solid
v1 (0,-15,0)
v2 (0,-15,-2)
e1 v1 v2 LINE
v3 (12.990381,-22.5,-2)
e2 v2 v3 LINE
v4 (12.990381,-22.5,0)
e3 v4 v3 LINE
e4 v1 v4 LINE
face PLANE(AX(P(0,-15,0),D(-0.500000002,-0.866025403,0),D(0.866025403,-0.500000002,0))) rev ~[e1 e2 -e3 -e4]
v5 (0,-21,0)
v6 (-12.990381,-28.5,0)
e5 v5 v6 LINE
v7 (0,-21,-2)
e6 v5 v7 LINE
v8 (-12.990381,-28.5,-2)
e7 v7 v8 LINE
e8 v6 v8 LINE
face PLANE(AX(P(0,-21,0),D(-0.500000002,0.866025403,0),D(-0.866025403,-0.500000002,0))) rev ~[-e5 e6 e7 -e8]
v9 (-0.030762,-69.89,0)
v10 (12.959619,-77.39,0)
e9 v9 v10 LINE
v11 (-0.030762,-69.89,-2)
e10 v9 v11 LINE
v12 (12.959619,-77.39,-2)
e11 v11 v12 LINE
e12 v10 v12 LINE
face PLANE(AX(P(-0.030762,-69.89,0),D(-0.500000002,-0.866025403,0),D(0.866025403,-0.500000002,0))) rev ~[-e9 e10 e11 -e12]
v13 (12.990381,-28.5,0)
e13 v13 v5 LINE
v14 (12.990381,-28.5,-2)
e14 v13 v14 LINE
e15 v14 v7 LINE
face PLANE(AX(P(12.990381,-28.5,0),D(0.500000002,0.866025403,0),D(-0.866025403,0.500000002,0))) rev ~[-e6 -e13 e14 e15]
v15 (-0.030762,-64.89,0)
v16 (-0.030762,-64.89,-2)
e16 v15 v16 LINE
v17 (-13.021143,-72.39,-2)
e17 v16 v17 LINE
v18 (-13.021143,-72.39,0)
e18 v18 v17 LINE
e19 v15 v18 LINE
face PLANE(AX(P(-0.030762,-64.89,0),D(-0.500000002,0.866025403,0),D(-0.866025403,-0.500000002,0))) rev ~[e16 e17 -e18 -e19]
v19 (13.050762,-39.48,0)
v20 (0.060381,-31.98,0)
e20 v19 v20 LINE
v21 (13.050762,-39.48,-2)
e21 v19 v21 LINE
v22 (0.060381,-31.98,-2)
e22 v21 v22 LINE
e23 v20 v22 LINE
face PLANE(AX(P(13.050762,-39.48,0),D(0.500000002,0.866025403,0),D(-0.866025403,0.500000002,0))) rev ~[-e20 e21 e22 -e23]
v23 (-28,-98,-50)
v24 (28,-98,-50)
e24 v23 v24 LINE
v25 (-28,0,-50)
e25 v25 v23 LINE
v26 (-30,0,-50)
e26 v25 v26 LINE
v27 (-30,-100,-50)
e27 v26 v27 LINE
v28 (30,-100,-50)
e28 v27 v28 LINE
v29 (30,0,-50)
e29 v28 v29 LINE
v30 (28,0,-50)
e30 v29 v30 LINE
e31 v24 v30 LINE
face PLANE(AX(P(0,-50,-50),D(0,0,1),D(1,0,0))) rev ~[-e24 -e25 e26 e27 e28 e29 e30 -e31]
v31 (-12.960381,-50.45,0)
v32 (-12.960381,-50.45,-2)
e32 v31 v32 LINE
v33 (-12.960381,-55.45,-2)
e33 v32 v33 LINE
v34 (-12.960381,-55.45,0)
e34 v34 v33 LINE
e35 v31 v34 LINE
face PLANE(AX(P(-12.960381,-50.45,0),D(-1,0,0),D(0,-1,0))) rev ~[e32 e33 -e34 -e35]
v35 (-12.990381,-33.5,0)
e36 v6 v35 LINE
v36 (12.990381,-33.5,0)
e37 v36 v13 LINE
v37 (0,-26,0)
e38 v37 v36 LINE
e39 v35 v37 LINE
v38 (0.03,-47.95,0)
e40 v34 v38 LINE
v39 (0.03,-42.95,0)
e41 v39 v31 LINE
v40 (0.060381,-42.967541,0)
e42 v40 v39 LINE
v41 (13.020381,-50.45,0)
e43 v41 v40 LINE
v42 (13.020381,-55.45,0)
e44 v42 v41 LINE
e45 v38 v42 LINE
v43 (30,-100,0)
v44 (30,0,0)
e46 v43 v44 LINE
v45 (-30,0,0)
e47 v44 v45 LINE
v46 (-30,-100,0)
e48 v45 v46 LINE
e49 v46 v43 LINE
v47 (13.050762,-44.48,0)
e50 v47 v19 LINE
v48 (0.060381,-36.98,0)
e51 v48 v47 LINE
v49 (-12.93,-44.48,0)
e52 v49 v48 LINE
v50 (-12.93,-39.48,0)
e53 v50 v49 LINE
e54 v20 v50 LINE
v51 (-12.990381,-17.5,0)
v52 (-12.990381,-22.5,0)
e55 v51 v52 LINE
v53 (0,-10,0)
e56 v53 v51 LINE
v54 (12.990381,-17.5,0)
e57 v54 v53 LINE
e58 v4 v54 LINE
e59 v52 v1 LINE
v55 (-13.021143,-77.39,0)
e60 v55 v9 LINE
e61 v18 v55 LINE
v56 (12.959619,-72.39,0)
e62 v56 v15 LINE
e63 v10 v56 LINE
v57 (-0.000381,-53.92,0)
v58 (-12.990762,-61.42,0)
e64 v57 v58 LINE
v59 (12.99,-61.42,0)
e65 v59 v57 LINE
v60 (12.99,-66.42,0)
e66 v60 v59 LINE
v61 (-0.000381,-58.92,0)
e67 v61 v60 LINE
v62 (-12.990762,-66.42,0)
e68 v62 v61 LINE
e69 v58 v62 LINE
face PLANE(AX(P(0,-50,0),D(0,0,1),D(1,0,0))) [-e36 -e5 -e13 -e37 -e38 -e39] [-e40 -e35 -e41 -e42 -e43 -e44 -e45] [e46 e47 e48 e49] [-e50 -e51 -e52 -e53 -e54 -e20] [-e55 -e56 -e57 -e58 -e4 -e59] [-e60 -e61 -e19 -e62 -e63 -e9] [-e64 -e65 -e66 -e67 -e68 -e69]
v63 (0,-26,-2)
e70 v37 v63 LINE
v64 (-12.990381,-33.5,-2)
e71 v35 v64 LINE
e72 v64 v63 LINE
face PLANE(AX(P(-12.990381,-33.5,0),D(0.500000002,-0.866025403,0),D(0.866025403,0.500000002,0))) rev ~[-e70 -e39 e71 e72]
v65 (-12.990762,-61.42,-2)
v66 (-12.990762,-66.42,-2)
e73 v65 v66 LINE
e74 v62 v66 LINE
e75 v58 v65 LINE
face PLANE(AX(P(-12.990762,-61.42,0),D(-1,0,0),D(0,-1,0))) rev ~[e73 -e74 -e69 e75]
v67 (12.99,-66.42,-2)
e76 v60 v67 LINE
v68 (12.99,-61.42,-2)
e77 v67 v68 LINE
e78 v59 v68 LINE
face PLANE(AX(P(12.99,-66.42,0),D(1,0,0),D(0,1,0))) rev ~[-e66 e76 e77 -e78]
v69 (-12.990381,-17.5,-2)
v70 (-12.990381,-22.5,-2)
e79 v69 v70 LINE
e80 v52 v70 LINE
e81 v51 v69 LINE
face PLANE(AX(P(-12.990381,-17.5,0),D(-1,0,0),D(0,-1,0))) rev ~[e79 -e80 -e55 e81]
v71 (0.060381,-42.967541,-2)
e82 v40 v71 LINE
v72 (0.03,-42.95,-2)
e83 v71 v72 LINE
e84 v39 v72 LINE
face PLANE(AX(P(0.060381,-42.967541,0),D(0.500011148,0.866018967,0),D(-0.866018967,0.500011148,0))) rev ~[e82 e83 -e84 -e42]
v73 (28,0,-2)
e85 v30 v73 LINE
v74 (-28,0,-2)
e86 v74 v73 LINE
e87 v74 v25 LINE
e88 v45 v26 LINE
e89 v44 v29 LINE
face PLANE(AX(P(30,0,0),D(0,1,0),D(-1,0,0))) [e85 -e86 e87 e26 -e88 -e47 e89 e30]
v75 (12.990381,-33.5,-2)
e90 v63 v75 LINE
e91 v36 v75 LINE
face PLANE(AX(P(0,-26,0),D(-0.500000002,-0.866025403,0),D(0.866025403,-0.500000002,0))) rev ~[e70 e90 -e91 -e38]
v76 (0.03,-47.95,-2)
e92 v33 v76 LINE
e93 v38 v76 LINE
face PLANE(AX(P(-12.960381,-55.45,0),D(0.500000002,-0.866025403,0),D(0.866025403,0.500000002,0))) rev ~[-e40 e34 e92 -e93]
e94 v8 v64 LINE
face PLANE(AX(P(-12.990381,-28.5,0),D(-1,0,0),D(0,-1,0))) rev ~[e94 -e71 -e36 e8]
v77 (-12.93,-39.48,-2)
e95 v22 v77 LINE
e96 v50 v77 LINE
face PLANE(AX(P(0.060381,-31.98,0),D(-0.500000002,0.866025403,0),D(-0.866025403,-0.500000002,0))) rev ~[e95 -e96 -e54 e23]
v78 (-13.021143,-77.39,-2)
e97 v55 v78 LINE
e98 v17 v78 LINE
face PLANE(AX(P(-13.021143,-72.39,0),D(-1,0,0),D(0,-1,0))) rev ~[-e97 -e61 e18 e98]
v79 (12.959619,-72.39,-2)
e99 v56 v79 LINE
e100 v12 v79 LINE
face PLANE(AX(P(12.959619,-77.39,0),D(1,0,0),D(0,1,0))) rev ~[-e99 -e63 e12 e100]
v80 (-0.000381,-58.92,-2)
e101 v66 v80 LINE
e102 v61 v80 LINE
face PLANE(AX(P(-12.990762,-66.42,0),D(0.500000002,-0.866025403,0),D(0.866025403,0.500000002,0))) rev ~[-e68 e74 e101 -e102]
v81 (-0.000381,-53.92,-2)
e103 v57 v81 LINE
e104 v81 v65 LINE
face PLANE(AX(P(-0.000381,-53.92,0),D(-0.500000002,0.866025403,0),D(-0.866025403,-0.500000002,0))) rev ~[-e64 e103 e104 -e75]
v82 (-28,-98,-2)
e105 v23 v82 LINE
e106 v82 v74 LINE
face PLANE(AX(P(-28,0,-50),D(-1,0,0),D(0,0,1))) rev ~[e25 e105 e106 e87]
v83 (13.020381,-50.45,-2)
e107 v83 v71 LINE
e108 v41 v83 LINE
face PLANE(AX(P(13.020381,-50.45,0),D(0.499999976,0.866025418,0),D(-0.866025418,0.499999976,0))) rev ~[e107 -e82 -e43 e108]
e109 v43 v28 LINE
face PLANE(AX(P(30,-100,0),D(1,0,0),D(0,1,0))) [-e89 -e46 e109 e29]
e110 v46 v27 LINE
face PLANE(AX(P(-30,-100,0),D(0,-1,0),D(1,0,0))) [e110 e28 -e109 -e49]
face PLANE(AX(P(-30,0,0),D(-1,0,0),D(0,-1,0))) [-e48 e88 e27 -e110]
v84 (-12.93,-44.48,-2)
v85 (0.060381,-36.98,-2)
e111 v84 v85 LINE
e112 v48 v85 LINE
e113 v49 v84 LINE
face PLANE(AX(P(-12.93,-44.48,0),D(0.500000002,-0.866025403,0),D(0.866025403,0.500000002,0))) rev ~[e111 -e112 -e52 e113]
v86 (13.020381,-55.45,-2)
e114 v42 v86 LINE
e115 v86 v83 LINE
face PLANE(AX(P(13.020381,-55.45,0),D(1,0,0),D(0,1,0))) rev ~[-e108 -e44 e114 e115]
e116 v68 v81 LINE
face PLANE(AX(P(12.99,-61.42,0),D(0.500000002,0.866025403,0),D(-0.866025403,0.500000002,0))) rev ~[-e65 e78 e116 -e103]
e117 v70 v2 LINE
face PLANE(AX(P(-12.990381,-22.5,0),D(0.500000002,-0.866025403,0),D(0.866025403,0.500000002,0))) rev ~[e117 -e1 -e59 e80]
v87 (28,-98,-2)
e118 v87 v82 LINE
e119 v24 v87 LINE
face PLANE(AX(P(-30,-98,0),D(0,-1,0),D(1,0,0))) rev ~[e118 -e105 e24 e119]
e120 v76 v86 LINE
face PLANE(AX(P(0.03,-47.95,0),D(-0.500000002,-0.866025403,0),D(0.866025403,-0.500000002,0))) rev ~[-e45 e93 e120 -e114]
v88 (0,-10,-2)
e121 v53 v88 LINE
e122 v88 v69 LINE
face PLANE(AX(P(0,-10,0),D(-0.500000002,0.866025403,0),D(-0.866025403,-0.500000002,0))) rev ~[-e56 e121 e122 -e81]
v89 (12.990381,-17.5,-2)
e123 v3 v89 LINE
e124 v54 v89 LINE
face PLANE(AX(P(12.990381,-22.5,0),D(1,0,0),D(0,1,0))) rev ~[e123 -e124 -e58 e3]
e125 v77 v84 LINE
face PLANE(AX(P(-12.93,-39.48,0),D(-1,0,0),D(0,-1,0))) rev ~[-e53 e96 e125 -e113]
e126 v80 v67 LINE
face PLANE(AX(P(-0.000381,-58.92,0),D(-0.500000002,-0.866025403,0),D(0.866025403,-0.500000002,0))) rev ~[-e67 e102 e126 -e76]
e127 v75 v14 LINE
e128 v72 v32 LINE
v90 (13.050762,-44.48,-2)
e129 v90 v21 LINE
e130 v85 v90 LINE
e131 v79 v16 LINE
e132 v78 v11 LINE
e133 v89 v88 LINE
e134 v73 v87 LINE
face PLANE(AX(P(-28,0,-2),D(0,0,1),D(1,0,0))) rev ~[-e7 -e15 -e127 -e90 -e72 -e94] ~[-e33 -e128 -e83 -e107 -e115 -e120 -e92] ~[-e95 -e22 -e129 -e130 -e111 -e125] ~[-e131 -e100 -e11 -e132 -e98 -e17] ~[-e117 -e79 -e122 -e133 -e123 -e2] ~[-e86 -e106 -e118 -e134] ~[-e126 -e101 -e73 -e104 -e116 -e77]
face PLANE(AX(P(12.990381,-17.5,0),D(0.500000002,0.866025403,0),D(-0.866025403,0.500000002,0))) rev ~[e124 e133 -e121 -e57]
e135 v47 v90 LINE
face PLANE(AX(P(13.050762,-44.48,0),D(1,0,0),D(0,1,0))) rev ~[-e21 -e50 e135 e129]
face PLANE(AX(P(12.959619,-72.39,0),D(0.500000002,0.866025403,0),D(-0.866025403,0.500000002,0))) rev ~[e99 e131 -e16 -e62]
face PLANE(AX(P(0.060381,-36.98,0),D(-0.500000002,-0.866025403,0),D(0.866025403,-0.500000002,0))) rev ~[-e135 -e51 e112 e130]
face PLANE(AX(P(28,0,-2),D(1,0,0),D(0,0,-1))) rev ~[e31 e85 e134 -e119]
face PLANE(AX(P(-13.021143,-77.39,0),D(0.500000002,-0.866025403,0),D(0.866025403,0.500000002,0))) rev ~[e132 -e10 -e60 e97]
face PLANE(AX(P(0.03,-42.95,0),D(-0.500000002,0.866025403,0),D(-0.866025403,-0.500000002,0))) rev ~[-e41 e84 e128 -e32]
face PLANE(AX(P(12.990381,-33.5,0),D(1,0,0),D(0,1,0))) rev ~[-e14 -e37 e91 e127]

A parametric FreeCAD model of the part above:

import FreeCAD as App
import Part
import Sketcher
from FreeCAD import Vector
Q = App.Units.Quantity


def faces_at(feature, points):
    """Names of the faces that lie closest to the given points."""
    faces = feature.Shape.Faces
    near = lambda p: min(range(len(faces)), key=lambda i: faces[i].distToShape(Part.Vertex(*p))[0])
    return sorted({f"Face{near(p) + 1}" for p in points})

doc = App.newDocument("Part")
body = doc.addObject("PartDesign::Body", "Body")

sketch1 = doc.addObject("Sketcher::SketchObject", "Sketch")
body.addObject(sketch1)
sketch1.AttachmentSupport = (doc.XY_Plane, [""])
sketch1.MapMode = "FlatFace"
sketch1.addGeometry([
    Part.LineSegment(Vector(30, 0, 0), Vector(-30, 0, 0)),
    Part.LineSegment(Vector(-30, 0, 0), Vector(-30, -100, 0)),
    Part.LineSegment(Vector(-30, -100, 0), Vector(30, -100, 0)),
    Part.LineSegment(Vector(30, -100, 0), Vector(30, 0, 0)),
], False)
sketch1.addConstraint([
    Sketcher.Constraint("Coincident", 0, 2, 1, 1),
    Sketcher.Constraint("Coincident", 1, 2, 2, 1),
    Sketcher.Constraint("Coincident", 2, 2, 3, 1),
    Sketcher.Constraint("Coincident", 3, 2, 0, 1),
    Sketcher.Constraint("Horizontal", 0),
    Sketcher.Constraint("Vertical", 1),
    Sketcher.Constraint("Horizontal", 2),
    Sketcher.Constraint("Vertical", 3),
    Sketcher.Constraint("Symmetric", 0, 2, 3, 2, -1, 1),
    Sketcher.Constraint("DistanceX", 0, 2, 0, 1, Q("60 mm")),
    Sketcher.Constraint("DistanceY", 1, 2, 1, 1, Q("100 mm")),
])
pad1 = doc.addObject("PartDesign::Pad", "Pad")
body.addObject(pad1)
pad1.Profile = sketch1
pad1.Length = 50
pad1.Reversed = True
doc.recompute()

thickness = doc.addObject("PartDesign::Thickness", "Thickness")
body.addObject(thickness)
thickness.Base = (pad1, faces_at(pad1, [(0, -50, -50)]))
thickness.Value = 2
thickness.Reversed = True
thickness.Join = "Arc"

sketch2 = doc.addObject("Sketcher::SketchObject", "Sketch001")
body.addObject(sketch2)
sketch2.AttachmentSupport = (doc.XY_Plane, [""])
sketch2.MapMode = "FlatFace"
sketch2.addGeometry([
    Part.LineSegment(Vector(12.990381, -17.5, 0), Vector(0, -10, 0)),
    Part.LineSegment(Vector(0, -10, 0), Vector(-12.990381, -17.5, 0)),
    Part.LineSegment(Vector(-12.990381, -17.5, 0), Vector(-12.990381, -22.5, 0)),
    Part.LineSegment(Vector(-12.990381, -22.5, 0), Vector(0, -15, 0)),
    Part.LineSegment(Vector(0, -15, 0), Vector(12.990381, -22.5, 0)),
    Part.LineSegment(Vector(12.990381, -22.5, 0), Vector(12.990381, -17.5, 0)),
    Part.LineSegment(Vector(12.990381, -28.5, 0), Vector(0, -21, 0)),
    Part.LineSegment(Vector(0, -21, 0), Vector(-12.990381, -28.5, 0)),
    Part.LineSegment(Vector(-12.990381, -28.5, 0), Vector(-12.990381, -33.5, 0)),
    Part.LineSegment(Vector(-12.990381, -33.5, 0), Vector(0, -26, 0)),
    Part.LineSegment(Vector(0, -26, 0), Vector(12.990381, -33.5, 0)),
    Part.LineSegment(Vector(12.990381, -33.5, 0), Vector(12.990381, -28.5, 0)),
    Part.LineSegment(Vector(13.050762, -39.48, 0), Vector(0.060381, -31.98, 0)),
    Part.LineSegment(Vector(0.060381, -31.98, 0), Vector(-12.93, -39.48, 0)),
    Part.LineSegment(Vector(-12.93, -39.48, 0), Vector(-12.93, -44.48, 0)),
    Part.LineSegment(Vector(-12.93, -44.48, 0), Vector(0.060381, -36.98, 0)),
    Part.LineSegment(Vector(0.060381, -36.98, 0), Vector(13.050762, -44.48, 0)),
    Part.LineSegment(Vector(13.050762, -44.48, 0), Vector(13.050762, -39.48, 0)),
    Part.LineSegment(Vector(13.020381, -50.45, 0), Vector(0.060381, -42.967541, 0)),
    Part.LineSegment(Vector(0.060381, -42.967541, 0), Vector(0.03, -42.95, 0)),
    Part.LineSegment(Vector(0.03, -42.95, 0), Vector(-12.960381, -50.45, 0)),
    Part.LineSegment(Vector(-12.960381, -50.45, 0), Vector(-12.960381, -55.45, 0)),
    Part.LineSegment(Vector(-12.960381, -55.45, 0), Vector(0.03, -47.95, 0)),
    Part.LineSegment(Vector(0.03, -47.95, 0), Vector(13.020381, -55.45, 0)),
    Part.LineSegment(Vector(13.020381, -55.45, 0), Vector(13.020381, -50.45, 0)),
    Part.LineSegment(Vector(-12.990762, -66.42, 0), Vector(-0.000381, -58.92, 0)),
    Part.LineSegment(Vector(-0.000381, -58.92, 0), Vector(12.99, -66.42, 0)),
    Part.LineSegment(Vector(12.99, -66.42, 0), Vector(12.99, -61.42, 0)),
    Part.LineSegment(Vector(12.99, -61.42, 0), Vector(-0.000381, -53.92, 0)),
    Part.LineSegment(Vector(-0.000381, -53.92, 0), Vector(-12.990762, -61.42, 0)),
    Part.LineSegment(Vector(-12.990762, -61.42, 0), Vector(-12.990762, -66.42, 0)),
    Part.LineSegment(Vector(-13.021143, -77.39, 0), Vector(-0.030762, -69.89, 0)),
    Part.LineSegment(Vector(-0.030762, -69.89, 0), Vector(12.959619, -77.39, 0)),
    Part.LineSegment(Vector(12.959619, -77.39, 0), Vector(12.959619, -72.39, 0)),
    Part.LineSegment(Vector(12.959619, -72.39, 0), Vector(-0.030762, -64.89, 0)),
    Part.LineSegment(Vector(-0.030762, -64.89, 0), Vector(-13.021143, -72.39, 0)),
    Part.LineSegment(Vector(-13.021143, -72.39, 0), Vector(-13.021143, -77.39, 0)),
], False)
sketch2.addConstraint([
    Sketcher.Constraint("Coincident", 0, 2, 1, 1),
    Sketcher.Constraint("Coincident", 1, 2, 2, 1),
    Sketcher.Constraint("Coincident", 2, 2, 3, 1),
    Sketcher.Constraint("Coincident", 3, 2, 4, 1),
    Sketcher.Constraint("Coincident", 4, 2, 5, 1),
    Sketcher.Constraint("Coincident", 5, 2, 0, 1),
    Sketcher.Constraint("Coincident", 6, 2, 7, 1),
    Sketcher.Constraint("Coincident", 7, 2, 8, 1),
    Sketcher.Constraint("Coincident", 8, 2, 9, 1),
    Sketcher.Constraint("Coincident", 9, 2, 10, 1),
    Sketcher.Constraint("Coincident", 10, 2, 11, 1),
    Sketcher.Constraint("Coincident", 11, 2, 6, 1),
    Sketcher.Constraint("Coincident", 12, 2, 13, 1),
    Sketcher.Constraint("Coincident", 13, 2, 14, 1),
    Sketcher.Constraint("Coincident", 14, 2, 15, 1),
    Sketcher.Constraint("Coincident", 15, 2, 16, 1),
    Sketcher.Constraint("Coincident", 16, 2, 17, 1),
    Sketcher.Constraint("Coincident", 17, 2, 12, 1),
    Sketcher.Constraint("Coincident", 18, 2, 19, 1),
    Sketcher.Constraint("Coincident", 19, 2, 20, 1),
    Sketcher.Constraint("Coincident", 20, 2, 21, 1),
    Sketcher.Constraint("Coincident", 21, 2, 22, 1),
    Sketcher.Constraint("Coincident", 22, 2, 23, 1),
    Sketcher.Constraint("Coincident", 23, 2, 24, 1),
    Sketcher.Constraint("Coincident", 24, 2, 18, 1),
    Sketcher.Constraint("Coincident", 25, 2, 26, 1),
    Sketcher.Constraint("Coincident", 26, 2, 27, 1),
    Sketcher.Constraint("Coincident", 27, 2, 28, 1),
    Sketcher.Constraint("Coincident", 28, 2, 29, 1),
    Sketcher.Constraint("Coincident", 29, 2, 30, 1),
    Sketcher.Constraint("Coincident", 30, 2, 25, 1),
    Sketcher.Constraint("Coincident", 31, 2, 32, 1),
    Sketcher.Constraint("Coincident", 32, 2, 33, 1),
    Sketcher.Constraint("Coincident", 33, 2, 34, 1),
    Sketcher.Constraint("Coincident", 34, 2, 35, 1),
    Sketcher.Constraint("Coincident", 35, 2, 36, 1),
    Sketcher.Constraint("Coincident", 36, 2, 31, 1),
    Sketcher.Constraint("Vertical", 2),
    Sketcher.Constraint("Vertical", 5),
    Sketcher.Constraint("Vertical", 8),
    Sketcher.Constraint("Vertical", 11),
    Sketcher.Constraint("Vertical", 14),
    Sketcher.Constraint("Vertical", 17),
    Sketcher.Constraint("Vertical", 21),
    Sketcher.Constraint("Vertical", 24),
    Sketcher.Constraint("Vertical", 27),
    Sketcher.Constraint("Vertical", 30),
    Sketcher.Constraint("Vertical", 33),
    Sketcher.Constraint("Vertical", 36),
    Sketcher.Constraint("Symmetric", 2, 2, 4, 2, -2),
    Sketcher.Constraint("Symmetric", 8, 2, 10, 2, -2),
    Sketcher.Constraint("PointOnObject", 0, 2, -2),
    Sketcher.Constraint("PointOnObject", 3, 2, -2),
    Sketcher.Constraint("PointOnObject", 6, 2, -2),
    Sketcher.Constraint("PointOnObject", 9, 2, -2),
    Sketcher.Constraint("Parallel", 1, 3),
    Sketcher.Constraint("Parallel", 0, 4),
    Sketcher.Constraint("Parallel", 4, 6),
    Sketcher.Constraint("Parallel", 3, 7),
    Sketcher.Constraint("Parallel", 7, 9),
    Sketcher.Constraint("Parallel", 10, 12),
    Sketcher.Constraint("Parallel", 9, 13),
    Sketcher.Constraint("Parallel", 13, 15),
    Sketcher.Constraint("Parallel", 12, 16),
    Sketcher.Constraint("Parallel", 16, 18),
    Sketcher.Constraint("Parallel", 15, 20),
    Sketcher.Constraint("Parallel", 20, 22),
    Sketcher.Constraint("Parallel", 18, 23),
    Sketcher.Constraint("Parallel", 22, 25),
    Sketcher.Constraint("Parallel", 23, 26),
    Sketcher.Constraint("Parallel", 26, 28),
    Sketcher.Constraint("Parallel", 25, 29),
    Sketcher.Constraint("Parallel", 29, 31),
    Sketcher.Constraint("Parallel", 28, 32),
    Sketcher.Constraint("Parallel", 32, 34),
    Sketcher.Constraint("Parallel", 31, 35),
    Sketcher.Constraint("Horizontal", 14, 2, 16, 2),
    Sketcher.Constraint("Horizontal", 13, 2, 17, 2),
    Sketcher.Constraint("Horizontal", 21, 2, 23, 2),
    Sketcher.Constraint("Horizontal", 20, 2, 24, 2),
    Sketcher.Constraint("Horizontal", 27, 2, 29, 2),
    Sketcher.Constraint("Horizontal", 26, 2, 30, 2),
    Sketcher.Constraint("Horizontal", 33, 2, 35, 2),
    Sketcher.Constraint("Horizontal", 32, 2, 36, 2),
    Sketcher.Constraint("Vertical", 2, 2, 7, 2),
    Sketcher.Constraint("Vertical", 15, 2, 18, 2),
    Sketcher.Constraint("Vertical", 19, 2, 22, 2),
    Sketcher.Constraint("Equal", 5, 8),
    Sketcher.Constraint("Equal", 11, 14),
    Sketcher.Constraint("Equal", 17, 21),
    Sketcher.Constraint("Equal", 24, 27),
    Sketcher.Constraint("Equal", 30, 33),
    Sketcher.Constraint("Equal", 10, 12),
    Sketcher.Constraint("Equal", 16, 20),
    Sketcher.Constraint("Equal", 23, 25),
    Sketcher.Constraint("Equal", 29, 31),
    Sketcher.Constraint("DistanceY", 2, 2, 2, 1, Q("5 mm")),
    Sketcher.Constraint("Angle", 0, Q("150 deg")),
    Sketcher.Constraint("Distance", 0, Q("15 mm")),
    Sketcher.Constraint("DistanceY", 0, 2, -1, 1, Q("10 mm")),
    Sketcher.Constraint("DistanceY", 6, 2, -1, 1, Q("21 mm")),
    Sketcher.Constraint("DistanceY", 12, 2, -1, 1, Q("31.98 mm")),
    Sketcher.Constraint("DistanceX", 13, 2, -1, 1, Q("12.93 mm")),
    Sketcher.Constraint("DistanceX", -1, 1, 19, 2, Q("0.03 mm")),
    Sketcher.Constraint("DistanceY", 19, 2, -1, 1, Q("42.95 mm")),
    Sketcher.Constraint("DistanceY", 25, 2, -1, 1, Q("58.92 mm")),
    Sketcher.Constraint("DistanceX", -1, 1, 26, 2, Q("12.99 mm")),
    Sketcher.Constraint("DistanceY", 31, 2, -1, 1, Q("69.89 mm")),
    Sketcher.Constraint("DistanceX", 30, 2, 31, 2, Q("12.96 mm")),
])
pocket1 = doc.addObject("PartDesign::Pocket", "Pocket")
body.addObject(pocket1)
pocket1.Profile = sketch2
pocket1.Length = 10

sketch3 = doc.addObject("Sketcher::SketchObject", "Sketch002")
body.addObject(sketch3)
sketch3.AttachmentSupport = (doc.XZ_Plane, [""])
sketch3.MapMode = "FlatFace"
sketch3.addGeometry([
    Part.LineSegment(Vector(-28, -2, 0), Vector(28, -2, 0)),
    Part.LineSegment(Vector(28, -2, 0), Vector(28, -48, 0)),
    Part.LineSegment(Vector(28, -48, 0), Vector(-28, -48, 0)),
    Part.LineSegment(Vector(-28, -48, 0), Vector(-28, -2, 0)),
], False)
sketch3.addConstraint([
    Sketcher.Constraint("Coincident", 0, 2, 1, 1),
    Sketcher.Constraint("Coincident", 1, 2, 2, 1),
    Sketcher.Constraint("Coincident", 2, 2, 3, 1),
    Sketcher.Constraint("Coincident", 3, 2, 0, 1),
    Sketcher.Constraint("Horizontal", 0),
    Sketcher.Constraint("Vertical", 1),
    Sketcher.Constraint("Horizontal", 2),
    Sketcher.Constraint("Vertical", 3),
    Sketcher.Constraint("DistanceX", 0, 1, 0, 2, Q("56 mm")),
    Sketcher.Constraint("DistanceY", 1, 2, 1, 1, Q("46 mm")),
    Sketcher.Constraint("DistanceX", -1, 1, 0, 2, Q("28 mm")),
    Sketcher.Constraint("DistanceY", 0, 2, -1, 1, Q("2 mm")),
])
pocket2 = doc.addObject("PartDesign::Pocket", "Pocket001")
body.addObject(pocket2)
pocket2.Profile = sketch3
pocket2.Length = 5
pocket2.Reversed = True

sketch4 = doc.addObject("Sketcher::SketchObject", "Sketch003")
body.addObject(sketch4)
sketch4.AttachmentSupport = (doc.XZ_Plane, [""])
sketch4.MapMode = "FlatFace"
sketch4.addGeometry([
    Part.LineSegment(Vector(28, -48, 0), Vector(28, -50, 0)),
    Part.LineSegment(Vector(28, -50, 0), Vector(-28, -50, 0)),
    Part.LineSegment(Vector(-28, -50, 0), Vector(-28, -48, 0)),
    Part.LineSegment(Vector(-28, -48, 0), Vector(28, -48, 0)),
], False)
sketch4.addConstraint([
    Sketcher.Constraint("Coincident", 0, 2, 1, 1),
    Sketcher.Constraint("Coincident", 1, 2, 2, 1),
    Sketcher.Constraint("Coincident", 2, 2, 3, 1),
    Sketcher.Constraint("Coincident", 3, 2, 0, 1),
    Sketcher.Constraint("Vertical", 0),
    Sketcher.Constraint("Horizontal", 1),
    Sketcher.Constraint("Vertical", 2),
    Sketcher.Constraint("Horizontal", 3),
    Sketcher.Constraint("DistanceX", 1, 2, 1, 1, Q("56 mm")),
    Sketcher.Constraint("DistanceY", 0, 2, 0, 1, Q("2 mm")),
    Sketcher.Constraint("DistanceX", -1, 1, 0, 2, Q("28 mm")),
    Sketcher.Constraint("DistanceY", 0, 2, -1, 1, Q("50 mm")),
])
pocket3 = doc.addObject("PartDesign::Pocket", "Pocket002")
body.addObject(pocket3)
pocket3.Profile = sketch4
pocket3.Length = 25
pocket3.Reversed = True

doc.recompute()
